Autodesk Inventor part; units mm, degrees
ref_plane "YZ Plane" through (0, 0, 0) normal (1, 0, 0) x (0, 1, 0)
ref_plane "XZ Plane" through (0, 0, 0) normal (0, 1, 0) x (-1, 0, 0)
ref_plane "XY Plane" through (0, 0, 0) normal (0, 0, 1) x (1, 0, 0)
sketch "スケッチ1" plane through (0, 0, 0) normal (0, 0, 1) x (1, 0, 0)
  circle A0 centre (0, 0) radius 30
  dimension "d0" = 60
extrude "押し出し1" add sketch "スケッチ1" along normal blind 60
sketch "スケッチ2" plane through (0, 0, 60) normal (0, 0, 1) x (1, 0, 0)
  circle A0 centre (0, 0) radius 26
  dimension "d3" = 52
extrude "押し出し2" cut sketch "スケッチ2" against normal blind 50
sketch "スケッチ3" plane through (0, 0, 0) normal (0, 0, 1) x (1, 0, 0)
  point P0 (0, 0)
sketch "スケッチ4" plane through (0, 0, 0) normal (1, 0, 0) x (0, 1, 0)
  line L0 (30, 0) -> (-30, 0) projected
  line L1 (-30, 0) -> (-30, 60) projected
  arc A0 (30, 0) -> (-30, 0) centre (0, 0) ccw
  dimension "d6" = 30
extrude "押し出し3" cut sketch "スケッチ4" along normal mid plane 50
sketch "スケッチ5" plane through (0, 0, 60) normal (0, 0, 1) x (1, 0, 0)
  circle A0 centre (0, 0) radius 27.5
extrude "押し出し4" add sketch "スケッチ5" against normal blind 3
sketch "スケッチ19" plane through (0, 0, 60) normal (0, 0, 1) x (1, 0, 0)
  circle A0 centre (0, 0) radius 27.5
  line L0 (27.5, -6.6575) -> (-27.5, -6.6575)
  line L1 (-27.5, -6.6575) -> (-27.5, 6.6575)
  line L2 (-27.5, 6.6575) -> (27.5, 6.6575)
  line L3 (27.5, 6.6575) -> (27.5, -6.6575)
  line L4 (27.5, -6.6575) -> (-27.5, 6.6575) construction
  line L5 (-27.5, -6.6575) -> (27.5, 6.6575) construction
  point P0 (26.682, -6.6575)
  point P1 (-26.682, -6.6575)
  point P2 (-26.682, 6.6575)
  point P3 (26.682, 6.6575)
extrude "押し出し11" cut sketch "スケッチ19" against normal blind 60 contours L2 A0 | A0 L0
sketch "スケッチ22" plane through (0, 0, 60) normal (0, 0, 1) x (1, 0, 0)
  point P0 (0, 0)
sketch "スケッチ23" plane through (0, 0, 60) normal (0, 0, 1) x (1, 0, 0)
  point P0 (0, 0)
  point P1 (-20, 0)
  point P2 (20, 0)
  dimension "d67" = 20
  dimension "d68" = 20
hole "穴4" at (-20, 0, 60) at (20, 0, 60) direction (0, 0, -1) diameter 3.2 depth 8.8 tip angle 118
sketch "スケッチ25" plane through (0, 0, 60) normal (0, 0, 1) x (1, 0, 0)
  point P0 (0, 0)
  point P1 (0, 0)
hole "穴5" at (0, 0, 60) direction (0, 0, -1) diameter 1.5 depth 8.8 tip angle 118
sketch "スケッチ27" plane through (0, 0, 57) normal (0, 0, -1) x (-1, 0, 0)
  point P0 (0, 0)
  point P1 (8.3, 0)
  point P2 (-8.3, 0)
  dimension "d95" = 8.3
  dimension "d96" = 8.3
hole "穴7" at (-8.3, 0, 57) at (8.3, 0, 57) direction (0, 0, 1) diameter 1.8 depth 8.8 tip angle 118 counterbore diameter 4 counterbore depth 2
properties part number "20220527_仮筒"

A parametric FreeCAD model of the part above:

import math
import FreeCAD as App
import Part
import Sketcher
from FreeCAD import Vector
Q = App.Units.Quantity

doc = App.newDocument("Part")
body = doc.addObject("PartDesign::Body", "Body")

sketch1 = doc.addObject("Sketcher::SketchObject", "Sketch")
body.addObject(sketch1)
sketch1.AttachmentSupport = (doc.XY_Plane, [""])
sketch1.MapMode = "FlatFace"
sketch1.addGeometry(Part.Circle(Vector(0, 0, 0), Vector(0, 0, 1), 30), False)
sketch1.addConstraint(Sketcher.Constraint("Coincident", 0, 3, -1, 1))
sketch1.addConstraint(Sketcher.Constraint("Diameter", 0, Q("60 mm")))
pad1 = doc.addObject("PartDesign::Pad", "Pad")
body.addObject(pad1)
pad1.Profile = sketch1
pad1.Length = 60

sketch2 = doc.addObject("Sketcher::SketchObject", "Sketch001")
body.addObject(sketch2)
sketch2.AttachmentSupport = (doc.XY_Plane, [""])
sketch2.MapMode = "FlatFace"
sketch2.AttachmentOffset = App.Placement(Vector(0, 0, 60), App.Rotation())
sketch2.addGeometry(Part.Circle(Vector(0, 0, 0), Vector(0, 0, 1), 26), False)
sketch2.addConstraint(Sketcher.Constraint("Coincident", 0, 3, -1, 1))
sketch2.addConstraint(Sketcher.Constraint("Diameter", 0, Q("52 mm")))
pocket1 = doc.addObject("PartDesign::Pocket", "Pocket")
body.addObject(pocket1)
pocket1.Profile = sketch2
pocket1.Length = 50

sketch3 = doc.addObject("Sketcher::SketchObject", "Sketch002")
body.addObject(sketch3)
sketch3.AttachmentSupport = (doc.YZ_Plane, [""])
sketch3.MapMode = "FlatFace"
sketch3.addGeometry(Part.LineSegment(Vector(-30, 0, 0), Vector(30, 0, 0)), False)
sketch3.addGeometry(Part.ArcOfCircle(Part.Circle(Vector(0, 0, 0), Vector(0, 0, 1), 30), math.radians(0), math.radians(180)), False)
sketch3.addConstraint(Sketcher.Constraint("Coincident", 0, 1, 1, 2))
sketch3.addConstraint(Sketcher.Constraint("Coincident", 1, 1, 0, 2))
sketch3.addConstraint(Sketcher.Constraint("Horizontal", 0))
sketch3.addConstraint(Sketcher.Constraint("Coincident", 1, 3, -1, 1))
sketch3.addConstraint(Sketcher.Constraint("PointOnObject", 0, 1, -1))
sketch3.addConstraint(Sketcher.Constraint("Radius", 1, Q("30 mm")))
pocket2 = doc.addObject("PartDesign::Pocket", "Pocket001")
body.addObject(pocket2)
pocket2.Profile = sketch3
pocket2.Length = 50
pocket2.Midplane = True

sketch4 = doc.addObject("Sketcher::SketchObject", "Sketch003")
body.addObject(sketch4)
sketch4.AttachmentSupport = (doc.XY_Plane, [""])
sketch4.MapMode = "FlatFace"
sketch4.AttachmentOffset = App.Placement(Vector(0, 0, 60), App.Rotation())
sketch4.addGeometry(Part.Circle(Vector(0, 0, 0), Vector(0, 0, 1), 27.5), False)
sketch4.addConstraint(Sketcher.Constraint("Coincident", 0, 3, -1, 1))
sketch4.addConstraint(Sketcher.Constraint("Diameter", 0, Q("55 mm")))
pad2 = doc.addObject("PartDesign::Pad", "Pad001")
body.addObject(pad2)
pad2.Profile = sketch4
pad2.Length = 3
pad2.Reversed = True

sketch5 = doc.addObject("Sketcher::SketchObject", "Sketch004")
body.addObject(sketch5)
sketch5.AttachmentSupport = (doc.XY_Plane, [""])
sketch5.MapMode = "FlatFace"
sketch5.AttachmentOffset = App.Placement(Vector(0, 0, 60), App.Rotation())
sketch5.addGeometry(Part.LineSegment(Vector(-26.681973, 6.6575, 0), Vector(26.681973, 6.6575, 0)), False)
sketch5.addGeometry(Part.ArcOfCircle(Part.Circle(Vector(0, 0, 0), Vector(0, 0, 1), 27.5), math.radians(14.00998), math.radians(165.99002)), False)
sketch5.addGeometry(Part.ArcOfCircle(Part.Circle(Vector(0, 0, 0), Vector(0, 0, 1), 27.5), math.radians(-165.99002), math.radians(-14.00998)), False)
sketch5.addGeometry(Part.LineSegment(Vector(26.681973, -6.6575, 0), Vector(-26.681973, -6.6575, 0)), False)
sketch5.addConstraint(Sketcher.Constraint("Coincident", 0, 1, 1, 2))
sketch5.addConstraint(Sketcher.Constraint("Coincident", 1, 1, 0, 2))
sketch5.addConstraint(Sketcher.Constraint("Coincident", 2, 1, 3, 2))
sketch5.addConstraint(Sketcher.Constraint("Coincident", 3, 1, 2, 2))
sketch5.addConstraint(Sketcher.Constraint("Horizontal", 0))
sketch5.addConstraint(Sketcher.Constraint("Horizontal", 3))
sketch5.addConstraint(Sketcher.Constraint("Coincident", 1, 3, -1, 1))
sketch5.addConstraint(Sketcher.Constraint("Coincident", 2, 3, -1, 1))
sketch5.addConstraint(Sketcher.Constraint("Equal", 1, 2))
sketch5.addConstraint(Sketcher.Constraint("Vertical", 0, 1, 2, 1))
sketch5.addConstraint(Sketcher.Constraint("Radius", 1, Q("27.5 mm")))
sketch5.addConstraint(Sketcher.Constraint("DistanceX", 0, 1, 0, 2, Q("53.364 mm")))
pocket3 = doc.addObject("PartDesign::Pocket", "Pocket002")
body.addObject(pocket3)
pocket3.Profile = sketch5
pocket3.Length = 60

sketch6 = doc.addObject("Sketcher::SketchObject", "Sketch005")
body.addObject(sketch6)
sketch6.AttachmentSupport = (doc.XY_Plane, [""])
sketch6.MapMode = "FlatFace"
sketch6.AttachmentOffset = App.Placement(Vector(0, 0, 60), App.Rotation())
sketch6.addGeometry(Part.Circle(Vector(-20, 0, 0), Vector(0, 0, 1), 1.6), False)
sketch6.addGeometry(Part.Circle(Vector(20, 0, 0), Vector(0, 0, 1), 1.6), False)
sketch6.addConstraint(Sketcher.Constraint("Equal", 0, 1))
sketch6.addConstraint(Sketcher.Constraint("Symmetric", 0, 3, 1, 3, -1, 1))
sketch6.addConstraint(Sketcher.Constraint("PointOnObject", 0, 3, -1))
sketch6.addConstraint(Sketcher.Constraint("Diameter", 0, Q("3.2 mm")))
sketch6.addConstraint(Sketcher.Constraint("DistanceX", 0, 3, -1, 1, Q("20 mm")))
doc.recompute()
hole = doc.addObject("PartDesign::Hole", "Hole")
body.addObject(hole)
hole.Profile = sketch6
hole.ThreadType = "None"
hole.Diameter = 3.2
hole.DepthType = "Dimension"
hole.Depth = 8.8
hole.DrillPoint = "Angled"
hole.DrillPointAngle = 118

sketch7 = doc.addObject("Sketcher::SketchObject", "Sketch006")
body.addObject(sketch7)
sketch7.AttachmentSupport = (doc.XY_Plane, [""])
sketch7.MapMode = "FlatFace"
sketch7.AttachmentOffset = App.Placement(Vector(0, 0, 60), App.Rotation())
sketch7.addGeometry(Part.Circle(Vector(0, 0, 0), Vector(0, 0, 1), 0.75), False)
sketch7.addConstraint(Sketcher.Constraint("Coincident", 0, 3, -1, 1))
sketch7.addConstraint(Sketcher.Constraint("Diameter", 0, Q("1.5 mm")))
doc.recompute()
hole2 = doc.addObject("PartDesign::Hole", "Hole001")
body.addObject(hole2)
hole2.Profile = sketch7
hole2.ThreadType = "None"
hole2.Diameter = 1.5
hole2.DepthType = "Dimension"
hole2.Depth = 8.8
hole2.DrillPoint = "Angled"
hole2.DrillPointAngle = 118

sketch8 = doc.addObject("Sketcher::SketchObject", "Sketch007")
body.addObject(sketch8)
sketch8.AttachmentSupport = (doc.XY_Plane, [""])
sketch8.MapMode = "FlatFace"
sketch8.AttachmentOffset = App.Placement(Vector(0, 0, 57), App.Rotation())
sketch8.addGeometry(Part.Circle(Vector(-8.3, 0, 0), Vector(0, 0, 1), 0.9), False)
sketch8.addGeometry(Part.Circle(Vector(8.3, 0, 0), Vector(0, 0, 1), 0.9), False)
sketch8.addConstraint(Sketcher.Constraint("Equal", 0, 1))
sketch8.addConstraint(Sketcher.Constraint("Symmetric", 0, 3, 1, 3, -1, 1))
sketch8.addConstraint(Sketcher.Constraint("PointOnObject", 0, 3, -1))
sketch8.addConstraint(Sketcher.Constraint("Diameter", 0, Q("1.8 mm")))
sketch8.addConstraint(Sketcher.Constraint("DistanceX", 0, 3, -1, 1, Q("8.3 mm")))
doc.recompute()
hole3 = doc.addObject("PartDesign::Hole", "Hole002")
body.addObject(hole3)
hole3.Profile = sketch8
hole3.ThreadType = "None"
hole3.Diameter = 1.8
hole3.DepthType = "Dimension"
hole3.Depth = 8.8
hole3.DrillPoint = "Angled"
hole3.DrillPointAngle = 118
hole3.HoleCutType = "Counterbore"
hole3.HoleCutDiameter = 4
hole3.HoleCutDepth = 2
hole3.Reversed = True

doc.recompute()
